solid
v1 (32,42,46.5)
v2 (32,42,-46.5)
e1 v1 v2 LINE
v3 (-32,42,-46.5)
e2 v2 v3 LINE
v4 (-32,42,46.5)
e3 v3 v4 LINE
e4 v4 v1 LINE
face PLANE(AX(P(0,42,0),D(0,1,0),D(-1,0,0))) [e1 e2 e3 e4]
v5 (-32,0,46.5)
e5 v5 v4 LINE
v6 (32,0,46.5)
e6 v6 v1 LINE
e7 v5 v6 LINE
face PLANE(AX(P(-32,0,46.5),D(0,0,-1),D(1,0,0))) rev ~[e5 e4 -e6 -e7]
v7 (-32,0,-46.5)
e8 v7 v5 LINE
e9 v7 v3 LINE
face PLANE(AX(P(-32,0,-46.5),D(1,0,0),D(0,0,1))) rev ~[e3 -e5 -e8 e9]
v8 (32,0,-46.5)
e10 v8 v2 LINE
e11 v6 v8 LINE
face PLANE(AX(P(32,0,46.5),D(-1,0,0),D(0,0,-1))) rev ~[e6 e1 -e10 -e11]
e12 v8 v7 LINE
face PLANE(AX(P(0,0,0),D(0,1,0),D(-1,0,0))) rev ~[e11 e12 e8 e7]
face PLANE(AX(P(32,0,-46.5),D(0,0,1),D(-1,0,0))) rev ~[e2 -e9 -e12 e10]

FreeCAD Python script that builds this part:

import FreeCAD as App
import Part
import Sketcher
Q = App.Units.Quantity

doc = App.newDocument("Part")
params = doc.addObject("Spreadsheet::Sheet", "Params")
for row, (alias, value) in enumerate([
    ("sketch1_width", "64 mm"),
    ("sketch1_height", "93 mm"),
    ("pad1_length", "42 mm"),
], start=1):
    params.set(f"A{row}", alias)
    params.set(f"B{row}", "=" + value)
    params.setAlias(f"B{row}", alias)

body = doc.addObject("PartDesign::Body", "Body")

sketch1 = body.newObject("Sketcher::SketchObject", "Sketch")
sketch1.AttachmentSupport = (doc.getObject("XZ_Plane"), [""])
sketch1.MapMode = "FlatFace"
sketch1.addGeometry([
    Part.LineSegment(App.Vector(32, 46, 0), App.Vector(32, -46, 0)),
    Part.LineSegment(App.Vector(32, -46, 0), App.Vector(-32, -46, 0)),
    Part.LineSegment(App.Vector(-32, -46, 0), App.Vector(-32, 46, 0)),
    Part.LineSegment(App.Vector(-32, 46, 0), App.Vector(32, 46, 0)),
], False)
sketch1.addConstraint([
    Sketcher.Constraint("Coincident", 0, 2, 1, 1),
    Sketcher.Constraint("Coincident", 1, 2, 2, 1),
    Sketcher.Constraint("Coincident", 2, 2, 3, 1),
    Sketcher.Constraint("Coincident", 3, 2, 0, 1),
    Sketcher.Constraint("Vertical", 0),
    Sketcher.Constraint("Horizontal", 1),
    Sketcher.Constraint("Vertical", 2),
    Sketcher.Constraint("Horizontal", 3),
    Sketcher.Constraint("Symmetric", 0, 2, 2, 2, -1, 1),
    Sketcher.Constraint("DistanceX", 1, 2, 1, 1, Q("64 mm")),
    Sketcher.Constraint("DistanceY", 0, 2, 0, 1, Q("93 mm")),
])
sketch1.setExpression("Constraints[9]", "Params.sketch1_width")
sketch1.setExpression("Constraints[10]", "Params.sketch1_height")
pad1 = body.newObject("PartDesign::Pad", "Pad")
pad1.Profile = sketch1
pad1.setExpression("Length", "Params.pad1_length")
pad1.Reversed = True

doc.recompute()
